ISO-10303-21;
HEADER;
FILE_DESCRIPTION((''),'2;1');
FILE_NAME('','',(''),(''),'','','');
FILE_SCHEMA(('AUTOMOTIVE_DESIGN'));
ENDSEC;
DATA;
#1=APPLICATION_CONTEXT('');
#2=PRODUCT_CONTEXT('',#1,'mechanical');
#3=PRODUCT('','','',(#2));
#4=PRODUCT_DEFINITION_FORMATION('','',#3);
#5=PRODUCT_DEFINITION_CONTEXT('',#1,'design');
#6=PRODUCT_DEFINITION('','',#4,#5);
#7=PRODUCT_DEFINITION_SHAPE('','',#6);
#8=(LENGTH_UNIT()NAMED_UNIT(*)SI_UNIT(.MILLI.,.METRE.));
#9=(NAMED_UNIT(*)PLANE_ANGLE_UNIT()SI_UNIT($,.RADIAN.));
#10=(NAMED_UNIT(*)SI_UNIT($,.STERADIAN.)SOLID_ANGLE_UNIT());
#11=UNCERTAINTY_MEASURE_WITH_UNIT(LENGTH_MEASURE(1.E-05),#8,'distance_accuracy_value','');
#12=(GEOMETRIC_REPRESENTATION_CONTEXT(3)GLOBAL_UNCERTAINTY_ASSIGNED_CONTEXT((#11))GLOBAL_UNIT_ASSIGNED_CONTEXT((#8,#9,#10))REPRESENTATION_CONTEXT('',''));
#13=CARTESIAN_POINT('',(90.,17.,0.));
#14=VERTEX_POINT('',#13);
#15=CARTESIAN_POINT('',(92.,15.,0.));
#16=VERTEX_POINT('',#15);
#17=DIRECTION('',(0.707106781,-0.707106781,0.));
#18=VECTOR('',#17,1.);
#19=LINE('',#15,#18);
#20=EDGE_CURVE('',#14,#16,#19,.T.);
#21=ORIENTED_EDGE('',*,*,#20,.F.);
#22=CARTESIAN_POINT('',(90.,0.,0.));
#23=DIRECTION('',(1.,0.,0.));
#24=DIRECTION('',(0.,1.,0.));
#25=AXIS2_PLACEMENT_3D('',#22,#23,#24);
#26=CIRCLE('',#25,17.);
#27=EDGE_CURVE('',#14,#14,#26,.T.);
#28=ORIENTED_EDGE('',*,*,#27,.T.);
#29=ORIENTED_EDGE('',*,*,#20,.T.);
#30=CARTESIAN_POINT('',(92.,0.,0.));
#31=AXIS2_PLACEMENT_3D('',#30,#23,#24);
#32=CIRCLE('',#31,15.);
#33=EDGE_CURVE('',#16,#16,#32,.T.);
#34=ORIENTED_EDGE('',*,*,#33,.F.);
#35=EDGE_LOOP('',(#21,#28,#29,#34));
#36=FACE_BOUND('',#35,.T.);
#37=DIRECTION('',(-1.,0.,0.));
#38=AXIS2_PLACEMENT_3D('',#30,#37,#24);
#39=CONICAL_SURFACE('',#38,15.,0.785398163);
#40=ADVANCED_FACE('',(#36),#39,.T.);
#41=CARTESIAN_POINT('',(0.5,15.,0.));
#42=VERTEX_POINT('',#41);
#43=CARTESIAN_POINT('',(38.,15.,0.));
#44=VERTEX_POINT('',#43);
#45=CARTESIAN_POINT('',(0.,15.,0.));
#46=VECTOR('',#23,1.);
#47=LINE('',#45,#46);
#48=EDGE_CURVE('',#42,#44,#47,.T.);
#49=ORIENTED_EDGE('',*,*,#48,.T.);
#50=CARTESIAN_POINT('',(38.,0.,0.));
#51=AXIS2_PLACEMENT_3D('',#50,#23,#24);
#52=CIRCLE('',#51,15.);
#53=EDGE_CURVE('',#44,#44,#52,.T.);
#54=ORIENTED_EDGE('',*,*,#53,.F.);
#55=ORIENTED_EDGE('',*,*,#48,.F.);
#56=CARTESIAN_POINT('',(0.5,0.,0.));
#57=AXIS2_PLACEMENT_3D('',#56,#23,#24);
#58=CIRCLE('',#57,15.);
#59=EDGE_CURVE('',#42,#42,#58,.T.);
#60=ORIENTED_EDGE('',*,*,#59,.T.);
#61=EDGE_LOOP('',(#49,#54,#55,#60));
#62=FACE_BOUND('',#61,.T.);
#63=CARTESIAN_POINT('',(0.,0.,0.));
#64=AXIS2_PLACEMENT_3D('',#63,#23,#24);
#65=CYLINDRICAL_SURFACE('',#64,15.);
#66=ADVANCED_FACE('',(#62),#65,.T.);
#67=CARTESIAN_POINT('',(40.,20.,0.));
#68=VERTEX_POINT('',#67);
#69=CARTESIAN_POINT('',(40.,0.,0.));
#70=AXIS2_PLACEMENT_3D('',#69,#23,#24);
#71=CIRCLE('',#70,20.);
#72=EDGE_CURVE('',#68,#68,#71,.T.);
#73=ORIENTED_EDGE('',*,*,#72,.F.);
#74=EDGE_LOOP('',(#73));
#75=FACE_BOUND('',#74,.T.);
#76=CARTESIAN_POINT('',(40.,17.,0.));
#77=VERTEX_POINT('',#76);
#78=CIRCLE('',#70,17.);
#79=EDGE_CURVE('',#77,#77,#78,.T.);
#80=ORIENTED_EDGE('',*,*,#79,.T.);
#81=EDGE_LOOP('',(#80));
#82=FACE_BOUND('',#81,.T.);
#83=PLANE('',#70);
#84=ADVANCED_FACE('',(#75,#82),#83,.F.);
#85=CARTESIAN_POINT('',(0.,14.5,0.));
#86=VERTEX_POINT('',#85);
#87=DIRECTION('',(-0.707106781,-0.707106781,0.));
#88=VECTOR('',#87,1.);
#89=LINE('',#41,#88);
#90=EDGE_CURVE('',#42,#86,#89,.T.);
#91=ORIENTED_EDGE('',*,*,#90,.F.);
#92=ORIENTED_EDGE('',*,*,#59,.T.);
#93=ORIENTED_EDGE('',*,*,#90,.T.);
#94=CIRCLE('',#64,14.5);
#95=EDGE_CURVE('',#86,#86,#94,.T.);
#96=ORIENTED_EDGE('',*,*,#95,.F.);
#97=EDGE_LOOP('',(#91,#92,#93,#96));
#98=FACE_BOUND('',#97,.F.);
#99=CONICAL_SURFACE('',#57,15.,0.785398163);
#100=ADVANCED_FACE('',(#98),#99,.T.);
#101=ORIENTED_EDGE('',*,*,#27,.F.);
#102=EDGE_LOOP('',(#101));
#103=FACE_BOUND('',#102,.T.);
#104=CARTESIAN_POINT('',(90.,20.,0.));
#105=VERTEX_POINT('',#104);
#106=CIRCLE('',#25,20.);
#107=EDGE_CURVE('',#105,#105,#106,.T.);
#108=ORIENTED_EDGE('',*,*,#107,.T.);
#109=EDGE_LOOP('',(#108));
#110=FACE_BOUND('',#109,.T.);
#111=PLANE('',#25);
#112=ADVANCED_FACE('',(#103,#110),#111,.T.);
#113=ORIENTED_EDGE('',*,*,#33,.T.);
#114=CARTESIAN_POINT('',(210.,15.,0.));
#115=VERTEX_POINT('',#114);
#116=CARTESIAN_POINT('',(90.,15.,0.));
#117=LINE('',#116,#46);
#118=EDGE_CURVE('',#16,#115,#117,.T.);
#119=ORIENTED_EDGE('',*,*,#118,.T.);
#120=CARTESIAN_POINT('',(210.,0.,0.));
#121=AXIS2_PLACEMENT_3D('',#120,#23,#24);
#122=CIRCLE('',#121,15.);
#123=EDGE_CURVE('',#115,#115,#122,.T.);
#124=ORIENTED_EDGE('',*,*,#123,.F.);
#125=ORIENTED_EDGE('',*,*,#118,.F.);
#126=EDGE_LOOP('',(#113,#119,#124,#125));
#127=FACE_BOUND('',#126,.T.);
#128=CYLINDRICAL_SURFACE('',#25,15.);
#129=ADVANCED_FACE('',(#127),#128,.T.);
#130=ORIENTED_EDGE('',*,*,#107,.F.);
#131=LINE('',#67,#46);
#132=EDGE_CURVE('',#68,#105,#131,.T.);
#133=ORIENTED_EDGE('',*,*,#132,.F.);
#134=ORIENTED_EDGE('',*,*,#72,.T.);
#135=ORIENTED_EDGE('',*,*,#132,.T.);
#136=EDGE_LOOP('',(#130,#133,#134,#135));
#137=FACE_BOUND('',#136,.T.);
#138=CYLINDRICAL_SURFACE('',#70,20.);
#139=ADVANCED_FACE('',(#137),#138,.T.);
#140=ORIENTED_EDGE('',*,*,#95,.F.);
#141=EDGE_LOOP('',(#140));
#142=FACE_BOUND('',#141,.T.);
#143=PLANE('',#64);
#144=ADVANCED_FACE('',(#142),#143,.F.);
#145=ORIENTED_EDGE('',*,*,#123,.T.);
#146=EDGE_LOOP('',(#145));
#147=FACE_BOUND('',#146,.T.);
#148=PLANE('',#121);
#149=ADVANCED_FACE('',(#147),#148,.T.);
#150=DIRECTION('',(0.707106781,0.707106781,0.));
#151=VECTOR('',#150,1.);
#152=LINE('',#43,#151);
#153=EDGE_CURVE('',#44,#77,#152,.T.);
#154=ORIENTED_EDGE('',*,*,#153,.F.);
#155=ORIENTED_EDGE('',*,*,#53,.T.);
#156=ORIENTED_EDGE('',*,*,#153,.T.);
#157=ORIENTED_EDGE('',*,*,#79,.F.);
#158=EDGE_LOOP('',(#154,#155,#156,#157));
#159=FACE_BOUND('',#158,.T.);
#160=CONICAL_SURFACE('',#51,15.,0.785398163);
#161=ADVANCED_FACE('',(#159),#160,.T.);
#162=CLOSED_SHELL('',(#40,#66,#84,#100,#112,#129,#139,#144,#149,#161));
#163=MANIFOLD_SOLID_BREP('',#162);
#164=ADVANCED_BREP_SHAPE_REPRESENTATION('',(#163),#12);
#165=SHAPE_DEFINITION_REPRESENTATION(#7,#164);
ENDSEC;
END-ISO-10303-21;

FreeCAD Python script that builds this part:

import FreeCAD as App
import Part
import Sketcher

V = App.Vector


def edges_at(feature, points):
    """Names of the edges that pass closest to the given points."""
    edges = feature.Shape.Edges
    near = lambda p: min(range(len(edges)), key=lambda i: edges[i].distToShape(Part.Vertex(*p))[0])
    return sorted({f"Edge{near(p) + 1}" for p in points})

doc = App.newDocument("Part")
params = doc.addObject("Spreadsheet::Sheet", "Params")
for row, (alias, value) in enumerate([
    ("sketch1_width", "40 mm"),
    ("sketch1_width2", "210 mm"),
    ("sketch1_width3", "120 mm"),
    ("sketch1_height", "15 mm"),
    ("sketch1_height2", "5 mm"),
    ("revolution_angle", "360 deg"),
    ("chamfer_size", "2 mm"),
    ("chamfer2_size", "0.5 mm"),
    ("chamfer3_size", "2 mm"),
], start=1):
    params.set(f"A{row}", alias)
    params.set(f"B{row}", "=" + value)
    params.setAlias(f"B{row}", alias)

body = doc.addObject("PartDesign::Body", "Body")

# Sketch on XY plane
sketch1 = body.newObject("Sketcher::SketchObject", "Sketch")
sketch1.AttachmentSupport = (doc.getObject("XY_Plane"), [""])
sketch1.MapMode = "FlatFace"
sketch1.addGeometry([
    Part.LineSegment(V(0, 15, 0), V(0, 0, 0)),  # 0
    Part.LineSegment(V(0, 0, 0), V(210, 0, 0)),  # 1
    Part.LineSegment(V(210, 0, 0), V(210, 15, 0)),  # 2
    Part.LineSegment(V(210, 15, 0), V(90, 15, 0)),  # 3
    Part.LineSegment(V(90, 15, 0), V(90, 20, 0)),  # 4
    Part.LineSegment(V(90, 20, 0), V(40, 20, 0)),  # 5
    Part.LineSegment(V(40, 20, 0), V(40, 15, 0)),  # 6
    Part.LineSegment(V(40, 15, 0), V(0, 15, 0)),  # 7
], False)
sketch1.addConstraint([
    Sketcher.Constraint("Coincident", 0, 2, 1, 1),
    Sketcher.Constraint("Coincident", 1, 2, 2, 1),
    Sketcher.Constraint("Coincident", 2, 2, 3, 1),
    Sketcher.Constraint("Coincident", 3, 2, 4, 1),
    Sketcher.Constraint("Coincident", 4, 2, 5, 1),
    Sketcher.Constraint("Coincident", 5, 2, 6, 1),
    Sketcher.Constraint("Coincident", 6, 2, 7, 1),
    Sketcher.Constraint("Coincident", 7, 2, 0, 1),
    Sketcher.Constraint("Vertical", 0),
    Sketcher.Constraint("Horizontal", 1),
    Sketcher.Constraint("Vertical", 2),
    Sketcher.Constraint("Horizontal", 3),
    Sketcher.Constraint("Vertical", 4),
    Sketcher.Constraint("Horizontal", 5),
    Sketcher.Constraint("Vertical", 6),
    Sketcher.Constraint("Horizontal", 7),
    Sketcher.Constraint("Coincident", 0, 2, -1, 1),
    Sketcher.Constraint("Horizontal", 3, 2, 6, 2),
    Sketcher.Constraint("DistanceX", 7, 2, 7, 1, 40.0),
    Sketcher.Constraint("DistanceX", 1, 1, 1, 2, 210.0),
    Sketcher.Constraint("DistanceX", 3, 2, 3, 1, 120.0),
    Sketcher.Constraint("DistanceY", 0, 2, 0, 1, 15.0),
    Sketcher.Constraint("DistanceY", 4, 1, 4, 2, 5.0),
])
sketch1.setExpression("Constraints[18]", "Params.sketch1_width")
sketch1.setExpression("Constraints[19]", "Params.sketch1_width2")
sketch1.setExpression("Constraints[20]", "Params.sketch1_width3")
sketch1.setExpression("Constraints[21]", "Params.sketch1_height")
sketch1.setExpression("Constraints[22]", "Params.sketch1_height2")
revolution = body.newObject("PartDesign::Revolution", "Revolution")
revolution.Profile = sketch1
revolution.ReferenceAxis = (sketch1, ["H_Axis"])
revolution.setExpression("Angle", "Params.revolution_angle")
doc.recompute()

chamfer = body.newObject("PartDesign::Chamfer", "Chamfer")
chamfer.Base = (revolution, edges_at(revolution, [(40, -15, 0)]))
chamfer.setExpression("Size", "Params.chamfer_size")
doc.recompute()

chamfer2 = body.newObject("PartDesign::Chamfer", "Chamfer001")
chamfer2.Base = (chamfer, edges_at(chamfer, [(0, -15, 0)]))
chamfer2.setExpression("Size", "Params.chamfer2_size")
doc.recompute()

chamfer3 = body.newObject("PartDesign::Chamfer", "Chamfer002")
chamfer3.Base = (chamfer2, edges_at(chamfer2, [(90, -15, 0)]))
chamfer3.setExpression("Size", "Params.chamfer3_size")

doc.recompute()
